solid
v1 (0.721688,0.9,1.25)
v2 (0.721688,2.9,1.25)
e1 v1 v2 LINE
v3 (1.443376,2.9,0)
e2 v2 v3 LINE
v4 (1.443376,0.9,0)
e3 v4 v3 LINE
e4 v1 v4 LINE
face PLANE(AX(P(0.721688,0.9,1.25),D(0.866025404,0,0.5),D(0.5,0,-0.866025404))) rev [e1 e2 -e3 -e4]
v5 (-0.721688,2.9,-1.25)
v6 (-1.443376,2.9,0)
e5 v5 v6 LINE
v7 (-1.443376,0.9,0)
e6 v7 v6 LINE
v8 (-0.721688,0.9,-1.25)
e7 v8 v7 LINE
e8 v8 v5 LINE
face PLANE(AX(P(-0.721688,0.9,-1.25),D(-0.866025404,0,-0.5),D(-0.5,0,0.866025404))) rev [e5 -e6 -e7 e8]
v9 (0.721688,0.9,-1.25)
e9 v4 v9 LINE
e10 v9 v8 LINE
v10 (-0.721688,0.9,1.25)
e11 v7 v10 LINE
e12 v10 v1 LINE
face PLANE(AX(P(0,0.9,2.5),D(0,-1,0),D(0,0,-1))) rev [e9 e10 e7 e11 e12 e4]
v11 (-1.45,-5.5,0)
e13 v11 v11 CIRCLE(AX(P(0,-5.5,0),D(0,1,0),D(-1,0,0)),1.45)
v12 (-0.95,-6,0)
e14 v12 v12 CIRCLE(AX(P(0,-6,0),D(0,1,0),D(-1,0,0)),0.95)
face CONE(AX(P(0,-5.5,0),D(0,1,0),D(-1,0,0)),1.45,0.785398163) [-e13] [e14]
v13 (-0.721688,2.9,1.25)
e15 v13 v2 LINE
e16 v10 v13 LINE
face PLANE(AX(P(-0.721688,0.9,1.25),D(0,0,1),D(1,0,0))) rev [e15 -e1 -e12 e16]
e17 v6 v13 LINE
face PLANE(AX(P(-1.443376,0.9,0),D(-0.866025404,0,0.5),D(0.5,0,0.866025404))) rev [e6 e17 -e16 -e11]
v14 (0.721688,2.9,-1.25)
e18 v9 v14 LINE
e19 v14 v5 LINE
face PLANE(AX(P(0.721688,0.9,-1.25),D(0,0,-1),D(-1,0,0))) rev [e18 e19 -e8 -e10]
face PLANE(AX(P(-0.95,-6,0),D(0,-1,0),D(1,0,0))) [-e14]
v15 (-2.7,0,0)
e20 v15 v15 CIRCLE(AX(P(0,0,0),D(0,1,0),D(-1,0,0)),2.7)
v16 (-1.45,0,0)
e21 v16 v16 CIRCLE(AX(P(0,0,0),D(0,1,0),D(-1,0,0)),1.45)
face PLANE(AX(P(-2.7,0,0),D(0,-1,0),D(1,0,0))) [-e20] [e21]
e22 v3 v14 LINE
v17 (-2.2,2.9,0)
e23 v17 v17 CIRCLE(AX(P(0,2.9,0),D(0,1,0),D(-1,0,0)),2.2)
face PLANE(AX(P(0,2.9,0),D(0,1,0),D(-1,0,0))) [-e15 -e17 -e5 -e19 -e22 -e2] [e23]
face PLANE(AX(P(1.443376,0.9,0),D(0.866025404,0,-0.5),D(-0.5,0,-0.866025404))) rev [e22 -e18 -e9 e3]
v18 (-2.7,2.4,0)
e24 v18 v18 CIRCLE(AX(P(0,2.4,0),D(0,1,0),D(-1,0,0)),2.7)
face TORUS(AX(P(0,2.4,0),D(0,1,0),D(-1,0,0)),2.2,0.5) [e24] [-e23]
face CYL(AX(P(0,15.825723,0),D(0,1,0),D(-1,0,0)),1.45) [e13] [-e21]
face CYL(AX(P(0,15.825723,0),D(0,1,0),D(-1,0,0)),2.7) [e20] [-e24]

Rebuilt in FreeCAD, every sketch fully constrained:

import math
import FreeCAD as App
import Part
import Sketcher
Q = App.Units.Quantity


def add_polygon(sketch, points):
    """Adds a closed chain of lines whose ends are joined by coincident constraints."""
    first, n = sketch.GeometryCount, len(points)
    for a, b in zip(points, points[1:] + points[:1]):
        sketch.addGeometry(Part.LineSegment(App.Vector(*a, 0), App.Vector(*b, 0)), False)
    for i in range(n):
        sketch.addConstraint(Sketcher.Constraint("Coincident", first + i, 2, first + (i + 1) % n, 1))

doc = App.newDocument("Part")
body = doc.addObject("PartDesign::Body", "Body")

sketch1 = doc.addObject("Sketcher::SketchObject", "Sketch")
body.addObject(sketch1)
sketch1.AttachmentSupport = (doc.XY_Plane, [""])
sketch1.MapMode = "FlatFace"
sketch1.addGeometry([
    Part.LineSegment(App.Vector(0, 2.9, 0), App.Vector(-2.2, 2.9, 0)),
    Part.ArcOfCircle(Part.Circle(App.Vector(-2.2, 2.4, 0), App.Vector(0, 0, 1), 0.5), math.radians(90), math.radians(180)),
    Part.LineSegment(App.Vector(-2.7, 2.4, 0), App.Vector(-2.7, 0, 0)),
    Part.LineSegment(App.Vector(-2.7, 0, 0), App.Vector(-1.45, 0, 0)),
    Part.LineSegment(App.Vector(-1.45, 0, 0), App.Vector(-1.45, -5.5, 0)),
    Part.LineSegment(App.Vector(-1.45, -5.5, 0), App.Vector(-0.95, -6, 0)),
    Part.LineSegment(App.Vector(-0.95, -6, 0), App.Vector(0, -6, 0)),
    Part.LineSegment(App.Vector(0, -6, 0), App.Vector(0, 2.9, 0)),
], False)
sketch1.addConstraint([
    Sketcher.Constraint("Tangent", 0, 2, 1, 1),
    Sketcher.Constraint("Tangent", 1, 2, 2, 1),
    Sketcher.Constraint("Coincident", 2, 2, 3, 1),
    Sketcher.Constraint("Coincident", 3, 2, 4, 1),
    Sketcher.Constraint("Coincident", 4, 2, 5, 1),
    Sketcher.Constraint("Coincident", 5, 2, 6, 1),
    Sketcher.Constraint("Coincident", 6, 2, 7, 1),
    Sketcher.Constraint("Coincident", 7, 2, 0, 1),
    Sketcher.Constraint("Horizontal", 0),
    Sketcher.Constraint("Vertical", 2),
    Sketcher.Constraint("Horizontal", 3),
    Sketcher.Constraint("Vertical", 4),
    Sketcher.Constraint("Horizontal", 6),
    Sketcher.Constraint("Vertical", 7),
    Sketcher.Constraint("PointOnObject", 2, 2, -1),
    Sketcher.Constraint("PointOnObject", 6, 2, -2),
    Sketcher.Constraint("Radius", 1, Q("0.5 mm")),
    Sketcher.Constraint("Angle", 5, Q("-45 deg")),
    Sketcher.Constraint("DistanceX", 0, 2, 0, 1, Q("2.2 mm")),
    Sketcher.Constraint("DistanceY", 2, 2, 2, 1, Q("2.4 mm")),
    Sketcher.Constraint("DistanceY", 4, 2, 4, 1, Q("5.5 mm")),
    Sketcher.Constraint("DistanceY", 7, 1, 7, 2, Q("8.9 mm")),
    Sketcher.Constraint("DistanceX", 3, 1, 3, 2, Q("1.25 mm")),
])
revolution = doc.addObject("PartDesign::Revolution", "Revolution")
body.addObject(revolution)
revolution.Profile = sketch1
revolution.ReferenceAxis = (sketch1, ["V_Axis"])
revolution.Angle = 360

sketch2 = doc.addObject("Sketcher::SketchObject", "Sketch001")
body.addObject(sketch2)
sketch2.AttachmentSupport = (doc.XZ_Plane, [""])
sketch2.MapMode = "FlatFace"
sketch2.AttachmentOffset = App.Placement(App.Vector(0, 0, -2.9), App.Rotation())
add_polygon(sketch2, [(1.4, 0), (0.7, -1.2), (-0.7, -1.2), (-1.4, 0), (-0.7, 1.2), (0.7, 1.2)])
sketch2.addConstraint([
    Sketcher.Constraint("Horizontal", 1),
    Sketcher.Constraint("Horizontal", 4),
    Sketcher.Constraint("Symmetric", 0, 2, 3, 2, -1, 1),
    Sketcher.Constraint("Symmetric", 2, 2, 5, 2, -1, 1),
    Sketcher.Constraint("PointOnObject", 2, 2, -1),
    Sketcher.Constraint("Parallel", 2, 5),
    Sketcher.Constraint("Vertical", 1, 2, 3, 2),
    Sketcher.Constraint("Angle", 0, Q("-120 deg")),
    Sketcher.Constraint("DistanceY", 1, 2, 3, 2, Q("2.5 mm")),
    Sketcher.Constraint("DistanceX", 1, 2, 1, 1, Q("1.443376 mm")),
])
pocket1 = doc.addObject("PartDesign::Pocket", "Pocket")
body.addObject(pocket1)
pocket1.Profile = sketch2
pocket1.Length = 2
pocket1.Reversed = True

doc.recompute()
